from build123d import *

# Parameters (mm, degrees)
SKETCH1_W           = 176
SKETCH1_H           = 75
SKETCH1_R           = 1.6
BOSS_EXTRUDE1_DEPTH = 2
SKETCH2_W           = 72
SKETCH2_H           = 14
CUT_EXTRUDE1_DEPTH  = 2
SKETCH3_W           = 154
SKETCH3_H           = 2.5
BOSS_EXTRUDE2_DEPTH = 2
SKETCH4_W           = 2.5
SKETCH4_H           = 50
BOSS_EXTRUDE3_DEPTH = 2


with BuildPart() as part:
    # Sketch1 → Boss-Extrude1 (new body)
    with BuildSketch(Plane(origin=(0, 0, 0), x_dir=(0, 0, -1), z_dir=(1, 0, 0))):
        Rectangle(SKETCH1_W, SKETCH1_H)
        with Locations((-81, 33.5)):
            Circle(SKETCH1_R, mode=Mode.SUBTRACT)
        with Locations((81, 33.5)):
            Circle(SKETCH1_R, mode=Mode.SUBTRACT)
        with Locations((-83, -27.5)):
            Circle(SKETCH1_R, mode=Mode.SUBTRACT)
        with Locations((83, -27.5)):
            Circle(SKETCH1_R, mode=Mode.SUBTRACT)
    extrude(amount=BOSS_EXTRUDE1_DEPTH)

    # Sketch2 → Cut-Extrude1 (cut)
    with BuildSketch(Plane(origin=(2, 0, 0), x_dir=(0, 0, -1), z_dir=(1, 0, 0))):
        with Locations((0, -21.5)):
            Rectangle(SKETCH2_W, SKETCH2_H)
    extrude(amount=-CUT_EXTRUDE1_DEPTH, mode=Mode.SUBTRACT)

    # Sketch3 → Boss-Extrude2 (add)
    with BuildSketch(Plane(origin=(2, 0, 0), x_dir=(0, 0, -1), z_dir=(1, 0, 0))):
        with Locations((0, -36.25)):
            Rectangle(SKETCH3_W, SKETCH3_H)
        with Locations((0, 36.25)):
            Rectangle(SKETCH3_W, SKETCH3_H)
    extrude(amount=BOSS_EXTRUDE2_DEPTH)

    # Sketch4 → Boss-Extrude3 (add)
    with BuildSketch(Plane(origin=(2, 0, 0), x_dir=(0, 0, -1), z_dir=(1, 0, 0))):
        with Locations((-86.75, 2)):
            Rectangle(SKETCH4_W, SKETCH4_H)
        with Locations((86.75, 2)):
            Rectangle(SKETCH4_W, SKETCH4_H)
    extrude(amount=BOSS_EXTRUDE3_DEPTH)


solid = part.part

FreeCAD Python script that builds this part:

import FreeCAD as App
import Part
import Sketcher
Q = App.Units.Quantity


def add_polygon(sketch, points):
    """Adds a closed chain of lines whose ends are joined by coincident constraints."""
    first, n = sketch.GeometryCount, len(points)
    for a, b in zip(points, points[1:] + points[:1]):
        sketch.addGeometry(Part.LineSegment(App.Vector(*a, 0), App.Vector(*b, 0)), False)
    for i in range(n):
        sketch.addConstraint(Sketcher.Constraint("Coincident", first + i, 2, first + (i + 1) % n, 1))

doc = App.newDocument("Part")
body = doc.addObject("PartDesign::Body", "Body")

# Sketch on YZ plane
sketch1 = body.newObject("Sketcher::SketchObject", "Sketch")
sketch1.AttachmentSupport = (doc.getObject("YZ_Plane"), [""])
sketch1.MapMode = "FlatFace"
add_polygon(sketch1, [(37.5, 88), (-37.5, 88), (-37.5, -88), (37.5, -88)])  # lines 0-3
sketch1.addGeometry(Part.Circle(App.Vector(-27.5, 83, 0), App.Vector(0, 0, 1), 1.6), False)  # 4
sketch1.addGeometry(Part.Circle(App.Vector(-27.5, -83, 0), App.Vector(0, 0, 1), 1.6), False)  # 5
sketch1.addGeometry(Part.Circle(App.Vector(33.5, 81, 0), App.Vector(0, 0, 1), 1.6), False)  # 6
sketch1.addGeometry(Part.Circle(App.Vector(33.5, -81, 0), App.Vector(0, 0, 1), 1.6), False)  # 7
sketch1.addConstraint(Sketcher.Constraint("Horizontal", 0))
sketch1.addConstraint(Sketcher.Constraint("Vertical", 1))
sketch1.addConstraint(Sketcher.Constraint("Horizontal", 2))
sketch1.addConstraint(Sketcher.Constraint("Vertical", 3))
sketch1.addConstraint(Sketcher.Constraint("Equal", 4, 5))
sketch1.addConstraint(Sketcher.Constraint("Equal", 5, 6))
sketch1.addConstraint(Sketcher.Constraint("Equal", 6, 7))
sketch1.addConstraint(Sketcher.Constraint("Symmetric", 0, 2, 2, 2, -1, 1))
sketch1.addConstraint(Sketcher.Constraint("Symmetric", 4, 3, 5, 3, -1))
sketch1.addConstraint(Sketcher.Constraint("Symmetric", 6, 3, 7, 3, -1))
sketch1.addConstraint(Sketcher.Constraint("Diameter", 4, Q("3.2 mm")))
sketch1.addConstraint(Sketcher.Constraint("DistanceX", 0, 2, 0, 1, Q("75 mm")))
sketch1.addConstraint(Sketcher.Constraint("DistanceY", 1, 2, 1, 1, Q("176 mm")))
sketch1.addConstraint(Sketcher.Constraint("DistanceY", -1, 1, 4, 3, Q("83 mm")))
sketch1.addConstraint(Sketcher.Constraint("DistanceY", -1, 1, 6, 3, Q("81 mm")))
sketch1.addConstraint(Sketcher.Constraint("DistanceX", 4, 3, 6, 3, Q("61 mm")))
sketch1.addConstraint(Sketcher.Constraint("DistanceX", 0, 2, 4, 3, Q("10 mm")))
pad1 = body.newObject("PartDesign::Pad", "Pad")
pad1.Profile = sketch1
pad1.Length = 2

# Sketch on YZ plane
sketch2 = body.newObject("Sketcher::SketchObject", "Sketch001")
sketch2.AttachmentSupport = (doc.getObject("YZ_Plane"), [""])
sketch2.MapMode = "FlatFace"
sketch2.AttachmentOffset = App.Placement(App.Vector(0, 0, 2), App.Rotation())
add_polygon(sketch2, [(-14.5, 36), (-28.5, 36), (-28.5, -36), (-14.5, -36)])  # lines 0-3
sketch2.addConstraint(Sketcher.Constraint("Horizontal", 0))
sketch2.addConstraint(Sketcher.Constraint("Vertical", 1))
sketch2.addConstraint(Sketcher.Constraint("Horizontal", 2))
sketch2.addConstraint(Sketcher.Constraint("Vertical", 3))
sketch2.addConstraint(Sketcher.Constraint("DistanceX", 0, 2, 0, 1, Q("14 mm")))
sketch2.addConstraint(Sketcher.Constraint("DistanceY", 1, 2, 1, 1, Q("72 mm")))
sketch2.addConstraint(Sketcher.Constraint("DistanceY", -1, 1, 0, 2, Q("36 mm")))
sketch2.addConstraint(Sketcher.Constraint("DistanceX", 0, 2, -1, 1, Q("28.5 mm")))
pocket1 = body.newObject("PartDesign::Pocket", "Pocket")
pocket1.Profile = sketch2
pocket1.Length = 2

# Sketch on YZ plane
sketch3 = body.newObject("Sketcher::SketchObject", "Sketch002")
sketch3.AttachmentSupport = (doc.getObject("YZ_Plane"), [""])
sketch3.MapMode = "FlatFace"
sketch3.AttachmentOffset = App.Placement(App.Vector(0, 0, 2), App.Rotation())
add_polygon(sketch3, [(-35, 77), (-37.5, 77), (-37.5, -77), (-35, -77)])  # lines 0-3
add_polygon(sketch3, [(37.5, 77), (35, 77), (35, -77), (37.5, -77)])  # lines 4-7
sketch3.addConstraint(Sketcher.Constraint("Horizontal", 0))
sketch3.addConstraint(Sketcher.Constraint("Vertical", 1))
sketch3.addConstraint(Sketcher.Constraint("Horizontal", 2))
sketch3.addConstraint(Sketcher.Constraint("Vertical", 3))
sketch3.addConstraint(Sketcher.Constraint("Horizontal", 4))
sketch3.addConstraint(Sketcher.Constraint("Vertical", 5))
sketch3.addConstraint(Sketcher.Constraint("Horizontal", 6))
sketch3.addConstraint(Sketcher.Constraint("Vertical", 7))
sketch3.addConstraint(Sketcher.Constraint("Symmetric", 2, 2, 4, 2, -1, 1))
sketch3.addConstraint(Sketcher.Constraint("Symmetric", 0, 2, 6, 2, -1, 1))
sketch3.addConstraint(Sketcher.Constraint("Horizontal", 3, 2, 4, 2))
sketch3.addConstraint(Sketcher.Constraint("DistanceY", 1, 2, 1, 1, Q("154 mm")))
sketch3.addConstraint(Sketcher.Constraint("DistanceX", 0, 2, 0, 1, Q("2.5 mm")))
sketch3.addConstraint(Sketcher.Constraint("DistanceX", 2, 2, -1, 1, Q("35 mm")))
pad2 = body.newObject("PartDesign::Pad", "Pad001")
pad2.Profile = sketch3
pad2.Length = 2

# Sketch on YZ plane
sketch4 = body.newObject("Sketcher::SketchObject", "Sketch003")
sketch4.AttachmentSupport = (doc.getObject("YZ_Plane"), [""])
sketch4.MapMode = "FlatFace"
sketch4.AttachmentOffset = App.Placement(App.Vector(0, 0, 2), App.Rotation())
add_polygon(sketch4, [(27, 88), (-23, 88), (-23, 85.5), (27, 85.5)])  # lines 0-3
add_polygon(sketch4, [(27, -85.5), (-23, -85.5), (-23, -88), (27, -88)])  # lines 4-7
sketch4.addConstraint(Sketcher.Constraint("Horizontal", 0))
sketch4.addConstraint(Sketcher.Constraint("Vertical", 1))
sketch4.addConstraint(Sketcher.Constraint("Horizontal", 2))
sketch4.addConstraint(Sketcher.Constraint("Vertical", 3))
sketch4.addConstraint(Sketcher.Constraint("Horizontal", 4))
sketch4.addConstraint(Sketcher.Constraint("Vertical", 5))
sketch4.addConstraint(Sketcher.Constraint("Horizontal", 6))
sketch4.addConstraint(Sketcher.Constraint("Vertical", 7))
sketch4.addConstraint(Sketcher.Constraint("Symmetric", 1, 2, 4, 2, -1))
sketch4.addConstraint(Sketcher.Constraint("Symmetric", 3, 2, 6, 2, -1))
sketch4.addConstraint(Sketcher.Constraint("DistanceX", 0, 2, 0, 1, Q("50 mm")))
sketch4.addConstraint(Sketcher.Constraint("DistanceY", 1, 2, 1, 1, Q("2.5 mm")))
sketch4.addConstraint(Sketcher.Constraint("DistanceX", 0, 2, -1, 1, Q("23 mm")))
sketch4.addConstraint(Sketcher.Constraint("DistanceY", -1, 1, 0, 2, Q("88 mm")))
pad3 = body.newObject("PartDesign::Pad", "Pad002")
pad3.Profile = sketch4
pad3.Length = 2

doc.recompute()
